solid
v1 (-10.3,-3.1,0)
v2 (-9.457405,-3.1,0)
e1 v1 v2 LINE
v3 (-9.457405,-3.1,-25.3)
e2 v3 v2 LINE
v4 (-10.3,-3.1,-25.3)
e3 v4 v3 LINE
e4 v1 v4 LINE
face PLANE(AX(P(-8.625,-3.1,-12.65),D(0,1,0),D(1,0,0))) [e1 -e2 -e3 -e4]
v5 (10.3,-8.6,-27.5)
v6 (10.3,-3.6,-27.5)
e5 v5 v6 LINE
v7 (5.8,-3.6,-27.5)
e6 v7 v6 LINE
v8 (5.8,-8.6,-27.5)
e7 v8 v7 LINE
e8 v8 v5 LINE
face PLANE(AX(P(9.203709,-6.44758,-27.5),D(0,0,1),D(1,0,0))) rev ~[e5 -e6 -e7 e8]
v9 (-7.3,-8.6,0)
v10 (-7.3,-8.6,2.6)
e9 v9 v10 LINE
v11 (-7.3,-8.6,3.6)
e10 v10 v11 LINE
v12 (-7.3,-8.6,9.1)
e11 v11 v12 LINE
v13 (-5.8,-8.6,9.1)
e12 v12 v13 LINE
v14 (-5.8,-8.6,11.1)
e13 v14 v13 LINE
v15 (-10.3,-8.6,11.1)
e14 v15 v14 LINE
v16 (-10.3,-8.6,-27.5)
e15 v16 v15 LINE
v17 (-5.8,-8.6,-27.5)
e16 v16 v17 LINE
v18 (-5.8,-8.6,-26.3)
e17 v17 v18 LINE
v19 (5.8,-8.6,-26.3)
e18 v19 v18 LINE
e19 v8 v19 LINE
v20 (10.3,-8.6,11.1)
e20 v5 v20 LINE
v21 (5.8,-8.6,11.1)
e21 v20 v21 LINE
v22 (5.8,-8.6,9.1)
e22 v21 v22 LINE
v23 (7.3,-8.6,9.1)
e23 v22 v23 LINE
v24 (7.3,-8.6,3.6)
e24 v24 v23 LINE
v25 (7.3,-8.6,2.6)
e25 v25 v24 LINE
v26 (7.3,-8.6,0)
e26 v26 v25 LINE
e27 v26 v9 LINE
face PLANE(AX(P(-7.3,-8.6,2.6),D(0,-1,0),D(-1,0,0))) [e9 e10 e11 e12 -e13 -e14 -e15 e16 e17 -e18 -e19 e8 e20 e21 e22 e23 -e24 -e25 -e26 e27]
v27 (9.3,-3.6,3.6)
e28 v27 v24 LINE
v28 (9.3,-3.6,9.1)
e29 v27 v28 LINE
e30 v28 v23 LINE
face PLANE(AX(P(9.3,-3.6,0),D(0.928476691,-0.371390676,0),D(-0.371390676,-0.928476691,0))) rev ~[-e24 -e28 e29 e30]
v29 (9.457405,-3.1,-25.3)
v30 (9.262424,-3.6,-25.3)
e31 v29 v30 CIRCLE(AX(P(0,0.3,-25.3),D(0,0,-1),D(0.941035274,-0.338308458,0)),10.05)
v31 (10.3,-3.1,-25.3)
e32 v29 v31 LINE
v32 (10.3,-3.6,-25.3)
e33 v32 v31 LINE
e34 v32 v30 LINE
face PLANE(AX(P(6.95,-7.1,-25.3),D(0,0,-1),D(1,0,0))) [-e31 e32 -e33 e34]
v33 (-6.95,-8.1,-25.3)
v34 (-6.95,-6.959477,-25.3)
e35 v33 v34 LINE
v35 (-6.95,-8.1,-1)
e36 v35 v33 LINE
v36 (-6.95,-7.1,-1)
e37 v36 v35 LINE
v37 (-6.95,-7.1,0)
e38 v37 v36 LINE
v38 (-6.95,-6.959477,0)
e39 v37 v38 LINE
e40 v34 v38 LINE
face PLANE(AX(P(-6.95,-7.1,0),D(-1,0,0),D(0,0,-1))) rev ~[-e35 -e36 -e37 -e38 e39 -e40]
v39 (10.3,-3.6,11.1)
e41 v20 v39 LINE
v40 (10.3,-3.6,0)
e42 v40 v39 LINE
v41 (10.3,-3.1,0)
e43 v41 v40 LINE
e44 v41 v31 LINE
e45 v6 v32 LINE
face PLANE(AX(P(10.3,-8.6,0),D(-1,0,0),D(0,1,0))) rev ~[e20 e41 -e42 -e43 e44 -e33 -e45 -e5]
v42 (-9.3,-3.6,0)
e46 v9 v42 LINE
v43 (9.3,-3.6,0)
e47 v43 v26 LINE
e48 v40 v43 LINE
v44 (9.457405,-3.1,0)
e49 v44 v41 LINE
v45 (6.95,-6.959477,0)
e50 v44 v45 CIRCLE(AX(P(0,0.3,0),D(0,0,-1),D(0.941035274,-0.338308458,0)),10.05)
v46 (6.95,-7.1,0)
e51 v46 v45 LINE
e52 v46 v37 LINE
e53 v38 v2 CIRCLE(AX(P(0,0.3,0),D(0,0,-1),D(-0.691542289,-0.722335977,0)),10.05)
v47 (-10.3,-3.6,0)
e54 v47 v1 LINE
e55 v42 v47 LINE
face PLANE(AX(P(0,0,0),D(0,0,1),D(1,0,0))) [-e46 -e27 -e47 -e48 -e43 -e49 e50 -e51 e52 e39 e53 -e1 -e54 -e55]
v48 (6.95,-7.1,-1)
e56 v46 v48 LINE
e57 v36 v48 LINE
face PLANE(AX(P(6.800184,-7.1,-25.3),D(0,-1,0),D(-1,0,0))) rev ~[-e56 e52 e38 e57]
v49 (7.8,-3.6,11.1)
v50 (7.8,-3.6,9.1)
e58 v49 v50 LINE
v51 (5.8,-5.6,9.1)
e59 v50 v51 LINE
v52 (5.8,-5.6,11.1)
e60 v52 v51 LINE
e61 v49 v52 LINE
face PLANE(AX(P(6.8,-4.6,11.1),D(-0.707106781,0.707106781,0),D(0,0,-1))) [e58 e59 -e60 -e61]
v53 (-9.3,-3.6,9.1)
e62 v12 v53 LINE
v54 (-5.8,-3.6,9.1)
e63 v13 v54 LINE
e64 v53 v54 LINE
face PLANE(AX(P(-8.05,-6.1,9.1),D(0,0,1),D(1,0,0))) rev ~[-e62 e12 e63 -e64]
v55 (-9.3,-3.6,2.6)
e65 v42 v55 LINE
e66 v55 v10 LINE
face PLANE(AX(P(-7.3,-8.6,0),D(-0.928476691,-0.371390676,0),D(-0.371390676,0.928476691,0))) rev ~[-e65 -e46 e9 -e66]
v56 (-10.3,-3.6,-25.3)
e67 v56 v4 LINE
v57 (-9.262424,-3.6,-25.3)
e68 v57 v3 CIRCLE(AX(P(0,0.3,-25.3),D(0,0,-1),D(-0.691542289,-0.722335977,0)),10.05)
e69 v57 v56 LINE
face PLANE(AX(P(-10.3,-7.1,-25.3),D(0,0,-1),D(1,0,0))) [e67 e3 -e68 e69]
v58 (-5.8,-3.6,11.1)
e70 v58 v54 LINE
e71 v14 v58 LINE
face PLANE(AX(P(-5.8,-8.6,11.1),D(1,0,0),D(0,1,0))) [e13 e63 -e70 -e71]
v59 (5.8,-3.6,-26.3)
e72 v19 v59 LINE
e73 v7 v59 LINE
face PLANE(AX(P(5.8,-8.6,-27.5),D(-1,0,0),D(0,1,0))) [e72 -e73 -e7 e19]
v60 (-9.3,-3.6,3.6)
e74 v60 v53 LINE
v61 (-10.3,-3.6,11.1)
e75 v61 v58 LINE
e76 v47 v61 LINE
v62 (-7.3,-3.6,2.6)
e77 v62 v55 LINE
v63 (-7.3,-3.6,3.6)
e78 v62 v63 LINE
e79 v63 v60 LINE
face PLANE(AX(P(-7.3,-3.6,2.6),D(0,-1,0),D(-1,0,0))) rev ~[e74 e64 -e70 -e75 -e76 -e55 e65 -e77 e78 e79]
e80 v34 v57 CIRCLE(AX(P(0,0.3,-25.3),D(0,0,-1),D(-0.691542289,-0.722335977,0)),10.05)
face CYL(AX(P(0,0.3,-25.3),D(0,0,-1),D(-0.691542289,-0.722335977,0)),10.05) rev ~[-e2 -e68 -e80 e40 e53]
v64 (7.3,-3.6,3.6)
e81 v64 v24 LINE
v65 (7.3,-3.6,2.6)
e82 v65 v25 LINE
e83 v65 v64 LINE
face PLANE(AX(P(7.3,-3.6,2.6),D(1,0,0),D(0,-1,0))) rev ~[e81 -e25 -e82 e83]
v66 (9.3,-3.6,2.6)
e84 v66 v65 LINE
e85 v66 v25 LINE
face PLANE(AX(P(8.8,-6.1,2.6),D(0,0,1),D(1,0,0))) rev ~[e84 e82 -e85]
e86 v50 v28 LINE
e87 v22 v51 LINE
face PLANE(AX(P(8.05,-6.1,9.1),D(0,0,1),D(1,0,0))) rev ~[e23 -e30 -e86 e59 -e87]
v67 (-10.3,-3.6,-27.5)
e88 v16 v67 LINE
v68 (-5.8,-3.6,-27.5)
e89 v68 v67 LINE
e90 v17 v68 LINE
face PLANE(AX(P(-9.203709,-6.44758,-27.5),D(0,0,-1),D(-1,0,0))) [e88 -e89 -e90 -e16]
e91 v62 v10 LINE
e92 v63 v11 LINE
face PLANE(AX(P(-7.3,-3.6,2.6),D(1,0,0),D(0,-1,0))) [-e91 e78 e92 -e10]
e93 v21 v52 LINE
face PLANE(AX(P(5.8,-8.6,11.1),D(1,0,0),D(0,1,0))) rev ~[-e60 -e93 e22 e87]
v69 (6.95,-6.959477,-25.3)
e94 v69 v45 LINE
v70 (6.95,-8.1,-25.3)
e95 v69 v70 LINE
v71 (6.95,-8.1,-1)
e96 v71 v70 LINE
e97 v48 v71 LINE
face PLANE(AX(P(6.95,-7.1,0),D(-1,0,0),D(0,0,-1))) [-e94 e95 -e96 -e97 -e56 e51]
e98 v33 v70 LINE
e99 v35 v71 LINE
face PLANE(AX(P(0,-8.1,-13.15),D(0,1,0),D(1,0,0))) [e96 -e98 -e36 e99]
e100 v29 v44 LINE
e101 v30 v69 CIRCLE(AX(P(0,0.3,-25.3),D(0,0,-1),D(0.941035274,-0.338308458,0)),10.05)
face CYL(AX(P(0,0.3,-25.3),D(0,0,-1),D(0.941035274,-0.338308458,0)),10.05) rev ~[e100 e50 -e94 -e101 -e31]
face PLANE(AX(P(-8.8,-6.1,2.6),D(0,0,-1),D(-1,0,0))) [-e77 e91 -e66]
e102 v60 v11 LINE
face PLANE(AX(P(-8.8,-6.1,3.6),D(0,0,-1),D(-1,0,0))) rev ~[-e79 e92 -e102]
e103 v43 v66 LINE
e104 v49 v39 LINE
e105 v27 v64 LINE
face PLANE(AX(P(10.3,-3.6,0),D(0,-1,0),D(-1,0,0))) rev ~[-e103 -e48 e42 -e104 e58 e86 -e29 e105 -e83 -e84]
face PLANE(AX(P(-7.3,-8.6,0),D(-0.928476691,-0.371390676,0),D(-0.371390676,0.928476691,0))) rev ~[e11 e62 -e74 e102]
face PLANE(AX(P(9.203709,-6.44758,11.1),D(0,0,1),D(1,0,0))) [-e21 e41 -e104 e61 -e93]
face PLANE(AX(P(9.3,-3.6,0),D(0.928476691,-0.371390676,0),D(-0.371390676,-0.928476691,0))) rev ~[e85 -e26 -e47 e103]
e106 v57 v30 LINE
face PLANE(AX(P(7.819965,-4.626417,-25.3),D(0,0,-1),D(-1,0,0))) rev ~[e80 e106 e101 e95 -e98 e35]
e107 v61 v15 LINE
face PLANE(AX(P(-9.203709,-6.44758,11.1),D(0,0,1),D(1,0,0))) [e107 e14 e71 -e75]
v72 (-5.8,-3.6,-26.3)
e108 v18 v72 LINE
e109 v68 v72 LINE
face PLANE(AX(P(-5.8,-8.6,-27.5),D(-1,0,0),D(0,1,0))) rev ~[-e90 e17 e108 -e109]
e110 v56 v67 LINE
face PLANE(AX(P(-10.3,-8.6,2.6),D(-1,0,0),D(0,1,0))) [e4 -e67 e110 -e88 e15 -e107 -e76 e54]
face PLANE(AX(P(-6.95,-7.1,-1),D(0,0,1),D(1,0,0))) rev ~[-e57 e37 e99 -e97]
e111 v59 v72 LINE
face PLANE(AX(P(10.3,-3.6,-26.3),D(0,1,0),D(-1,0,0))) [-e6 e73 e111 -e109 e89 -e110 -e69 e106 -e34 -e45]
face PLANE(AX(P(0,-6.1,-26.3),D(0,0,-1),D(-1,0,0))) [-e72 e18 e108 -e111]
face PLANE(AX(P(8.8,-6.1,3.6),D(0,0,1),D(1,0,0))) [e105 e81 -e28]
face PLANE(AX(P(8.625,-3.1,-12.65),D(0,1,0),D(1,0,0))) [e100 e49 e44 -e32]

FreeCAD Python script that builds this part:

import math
import FreeCAD as App
import Part
import Sketcher
from FreeCAD import Vector


def edges_at(feature, points):
    """Names of the edges that pass closest to the given points."""
    edges = feature.Shape.Edges
    near = lambda p: min(range(len(edges)), key=lambda i: edges[i].distToShape(Part.Vertex(*p))[0])
    return sorted({f"Edge{near(p) + 1}" for p in points})


def add_polygon(sketch, points):
    """Adds a closed chain of lines whose ends are joined by coincident constraints."""
    first, n = sketch.GeometryCount, len(points)
    for a, b in zip(points, points[1:] + points[:1]):
        sketch.addGeometry(Part.LineSegment(App.Vector(*a, 0), App.Vector(*b, 0)), False)
    for i in range(n):
        sketch.addConstraint(Sketcher.Constraint("Coincident", first + i, 2, first + (i + 1) % n, 1))

doc = App.newDocument("Part")
params = doc.addObject("Spreadsheet::Sheet", "Params")
for row, (alias, value) in enumerate([
    ("sketch1_radius", "3.1 mm"),
    ("sketch1_width", "20.6 mm"),
    ("sketch1_height", "17.2 mm"),
    ("sketch1_height2", "4.3 mm"),
    ("pad1_length", "2.5 mm"),
    ("sketch2_width", "20.6 mm"),
    ("sketch2_height", "1.5 mm"),
    ("pad2_length", "25.3 mm"),
    ("sketch3_height", "5 mm"),
    ("sketch3_width", "20.6 mm"),
    ("pad3_length", "1 mm"),
    ("sketch4_height", "25.3 mm"),
    ("sketch4_width", "3.35 mm"),
    ("pad4_length", "4 mm"),
    ("sketch5_radius", "3.1 mm"),
    ("sketch5_radius2", "10.05 mm"),
    ("sketch5_height", "4.3 mm"),
    ("pocket1_length", "25.3 mm"),
    ("chamfer_size", "2 mm"),
    ("sketch6_width", "3 mm"),
    ("sketch6_width2", "1 mm"),
    ("sketch6_height", "5 mm"),
    ("pad5_length", "1.2 mm"),
    ("sketch7_height", "5 mm"),
    ("sketch7_width", "4.5 mm"),
    ("pad6_length", "1.5 mm"),
    ("pocket2_length", "2.5 mm"),
    ("sketch9_width", "3 mm"),
    ("sketch9_width2", "1 mm"),
    ("sketch9_height", "5 mm"),
    ("pad7_length", "11.1 mm"),
    ("sketch10_width", "3 mm"),
    ("sketch10_height", "5 mm"),
    ("pad8_length", "1 mm"),
    ("sketch11_height", "5 mm"),
    ("sketch11_width", "4.5 mm"),
    ("pad9_length", "2 mm"),
    ("chamfer2_size", "2 mm"),
    ("sketch12_width", "13.9 mm"),
    ("sketch12_height", "24.3 mm"),
    ("pocket3_length", "1 mm"),
], start=1):
    params.set(f"A{row}", alias)
    params.set(f"B{row}", "=" + value)
    params.setAlias(f"B{row}", alias)

body = doc.addObject("PartDesign::Body", "Body")

sketch1 = body.newObject("Sketcher::SketchObject", "Sketch")
sketch1.AttachmentSupport = (doc.getObject("XY_Plane"), [""])
sketch1.MapMode = "FlatFace"
add_polygon(sketch1, [(-10.3, 8.6), (-10.3, -8.6), (10.3, -8.6), (10.3, 8.6)])
sketch1.addGeometry(Part.ArcOfCircle(Part.Circle(Vector(0, 2.3, 0), Vector(0, 0, 1), 3.1), math.radians(0), math.radians(180)), False)
sketch1.addGeometry(Part.LineSegment(Vector(3.1, 2.3, 0), Vector(3.1, -2, 0)), False)
sketch1.addGeometry(Part.ArcOfCircle(Part.Circle(Vector(0, -2, 0), Vector(0, 0, 1), 3.1), math.radians(180), math.radians(360)), False)
sketch1.addGeometry(Part.LineSegment(Vector(-3.1, -2, 0), Vector(-3.1, 2.3, 0)), False)
sketch1.addConstraint(Sketcher.Constraint("Tangent", 4, 1, 5, 1))
sketch1.addConstraint(Sketcher.Constraint("Tangent", 5, 2, 6, 2))
sketch1.addConstraint(Sketcher.Constraint("Tangent", 6, 1, 7, 1))
sketch1.addConstraint(Sketcher.Constraint("Tangent", 7, 2, 4, 2))
sketch1.addConstraint(Sketcher.Constraint("Vertical", 0))
sketch1.addConstraint(Sketcher.Constraint("Horizontal", 1))
sketch1.addConstraint(Sketcher.Constraint("Vertical", 2))
sketch1.addConstraint(Sketcher.Constraint("Horizontal", 3))
sketch1.addConstraint(Sketcher.Constraint("Vertical", 5))
sketch1.addConstraint(Sketcher.Constraint("Vertical", 7))
sketch1.addConstraint(Sketcher.Constraint("Symmetric", 0, 2, 2, 2, -1, 1))
sketch1.addConstraint(Sketcher.Constraint("PointOnObject", 4, 3, -2))
sketch1.addConstraint(Sketcher.Constraint("Radius", 4, 3.1))
sketch1.addConstraint(Sketcher.Constraint("DistanceX", 1, 1, 1, 2, 20.6))
sketch1.addConstraint(Sketcher.Constraint("DistanceY", 0, 2, 0, 1, 17.2))
sketch1.addConstraint(Sketcher.Constraint("DistanceY", 5, 2, 5, 1, 4.3))
sketch1.addConstraint(Sketcher.Constraint("DistanceY", 6, 3, -1, 1, 2.0))
sketch1.setExpression("Constraints[16]", "Params.sketch1_radius")
sketch1.setExpression("Constraints[17]", "Params.sketch1_width")
sketch1.setExpression("Constraints[18]", "Params.sketch1_height")
sketch1.setExpression("Constraints[19]", "Params.sketch1_height2")
pad1 = body.newObject("PartDesign::Pad", "Pad")
pad1.Profile = sketch1
pad1.setExpression("Length", "Params.pad1_length")

sketch2 = body.newObject("Sketcher::SketchObject", "Sketch001")
sketch2.AttachmentSupport = (doc.getObject("XY_Plane"), [""])
sketch2.MapMode = "FlatFace"
add_polygon(sketch2, [(10.3, -7.1), (10.3, -8.6), (-10.3, -8.6), (-10.3, -7.1)])
sketch2.addConstraint(Sketcher.Constraint("Vertical", 0))
sketch2.addConstraint(Sketcher.Constraint("Horizontal", 1))
sketch2.addConstraint(Sketcher.Constraint("Vertical", 2))
sketch2.addConstraint(Sketcher.Constraint("Horizontal", 3))
sketch2.addConstraint(Sketcher.Constraint("DistanceX", 1, 2, 1, 1, 20.6))
sketch2.addConstraint(Sketcher.Constraint("DistanceY", 0, 2, 0, 1, 1.5))
sketch2.addConstraint(Sketcher.Constraint("DistanceX", -1, 1, 0, 2, 10.3))
sketch2.addConstraint(Sketcher.Constraint("DistanceY", 0, 2, -1, 1, 8.6))
sketch2.setExpression("Constraints[8]", "Params.sketch2_width")
sketch2.setExpression("Constraints[9]", "Params.sketch2_height")
pad2 = body.newObject("PartDesign::Pad", "Pad001")
pad2.Profile = sketch2
pad2.setExpression("Length", "Params.pad2_length")
pad2.Reversed = True

sketch3 = body.newObject("Sketcher::SketchObject", "Sketch002")
sketch3.AttachmentSupport = (doc.getObject("XY_Plane"), [""])
sketch3.MapMode = "FlatFace"
sketch3.AttachmentOffset = App.Placement(Vector(0, 0, -25.3), App.Rotation())
add_polygon(sketch3, [(10, -4), (10, -9), (-10, -9), (-10, -4)])
sketch3.addConstraint(Sketcher.Constraint("Vertical", 0))
sketch3.addConstraint(Sketcher.Constraint("Horizontal", 1))
sketch3.addConstraint(Sketcher.Constraint("Vertical", 2))
sketch3.addConstraint(Sketcher.Constraint("Horizontal", 3))
sketch3.addConstraint(Sketcher.Constraint("DistanceY", 0, 2, 0, 1, 5.0))
sketch3.addConstraint(Sketcher.Constraint("DistanceX", 1, 2, 1, 1, 20.6))
sketch3.addConstraint(Sketcher.Constraint("DistanceX", -1, 1, 0, 2, 10.3))
sketch3.addConstraint(Sketcher.Constraint("DistanceY", 0, 2, -1, 1, 8.6))
sketch3.setExpression("Constraints[8]", "Params.sketch3_height")
sketch3.setExpression("Constraints[9]", "Params.sketch3_width")
pad3 = body.newObject("PartDesign::Pad", "Pad002")
pad3.Profile = sketch3
pad3.setExpression("Length", "Params.pad3_length")
pad3.Reversed = True

sketch4 = body.newObject("Sketcher::SketchObject", "Sketch003")
sketch4.AttachmentSupport = (doc.getObject("XZ_Plane"), [""])
sketch4.MapMode = "FlatFace"
sketch4.AttachmentOffset = App.Placement(Vector(0, 0, 7.1), App.Rotation())
add_polygon(sketch4, [(-10.3, -25.3), (-10.3, 0), (-7, 0), (-7, -25.3)])
add_polygon(sketch4, [(7, -25.3), (7, 0), (10.3, 0), (10.3, -25.3)])
sketch4.addConstraint(Sketcher.Constraint("Vertical", 0))
sketch4.addConstraint(Sketcher.Constraint("Horizontal", 1))
sketch4.addConstraint(Sketcher.Constraint("Vertical", 2))
sketch4.addConstraint(Sketcher.Constraint("Horizontal", 3))
sketch4.addConstraint(Sketcher.Constraint("Vertical", 4))
sketch4.addConstraint(Sketcher.Constraint("Horizontal", 5))
sketch4.addConstraint(Sketcher.Constraint("Vertical", 6))
sketch4.addConstraint(Sketcher.Constraint("Horizontal", 7))
sketch4.addConstraint(Sketcher.Constraint("Symmetric", 1, 2, 4, 2, -1, 1))
sketch4.addConstraint(Sketcher.Constraint("Symmetric", 0, 2, 5, 2, -2))
sketch4.addConstraint(Sketcher.Constraint("Horizontal", 3, 2, 6, 2))
sketch4.addConstraint(Sketcher.Constraint("DistanceY", 0, 1, 0, 2, 25.3))
sketch4.addConstraint(Sketcher.Constraint("DistanceX", 1, 1, 1, 2, 3.35))
sketch4.addConstraint(Sketcher.Constraint("DistanceX", 0, 2, -1, 1, 10.3))
sketch4.setExpression("Constraints[19]", "Params.sketch4_height")
sketch4.setExpression("Constraints[20]", "Params.sketch4_width")
pad4 = body.newObject("PartDesign::Pad", "Pad003")
pad4.Profile = sketch4
pad4.setExpression("Length", "Params.pad4_length")
pad4.Reversed = True

sketch5 = body.newObject("Sketcher::SketchObject", "Sketch004")
sketch5.AttachmentSupport = (doc.getObject("XY_Plane"), [""])
sketch5.MapMode = "FlatFace"
sketch5.AttachmentOffset = App.Placement(Vector(0, 0, -25.3), App.Rotation())
sketch5.addGeometry(Part.LineSegment(Vector(6.8, -7.1, 0), Vector(-6.8, -7.1, 0)), False)
sketch5.addGeometry(Part.ArcOfCircle(Part.Circle(Vector(0, 0.3, 0), Vector(0, 0, 1), 10.05), math.radians(-133.75), math.radians(-132.58)), False)
sketch5.addGeometry(Part.ArcOfCircle(Part.Circle(Vector(0, 0.3, 0), Vector(0, 0, 1), 10.05), math.radians(-160), math.radians(-134)), False)
sketch5.addGeometry(Part.ArcOfCircle(Part.Circle(Vector(0, 0.3, 0), Vector(0, 0, 1), 10.05), math.radians(180), math.radians(199.77)), False)
sketch5.addGeometry(Part.ArcOfCircle(Part.Circle(Vector(0, 0.3, 0), Vector(0, 0, 1), 10.05), math.radians(124), math.radians(180)), False)
sketch5.addGeometry(Part.LineSegment(Vector(-5.67, 8.6, 0), Vector(5.67, 8.6, 0)), False)
sketch5.addGeometry(Part.ArcOfCircle(Part.Circle(Vector(0, 0.3, 0), Vector(0, 0, 1), 10.05), math.radians(-20), math.radians(56)), False)
sketch5.addGeometry(Part.ArcOfCircle(Part.Circle(Vector(0, 0.3, 0), Vector(0, 0, 1), 10.05), math.radians(-46), math.radians(-20)), False)
sketch5.addGeometry(Part.ArcOfCircle(Part.Circle(Vector(0, 0.3, 0), Vector(0, 0, 1), 10.05), math.radians(-47.42), math.radians(-46.25)), False)
sketch5.addGeometry(Part.LineSegment(Vector(-3.1, 2.3, 0), Vector(-3.1, -2, 0)), False)
sketch5.addGeometry(Part.ArcOfCircle(Part.Circle(Vector(0, -2, 0), Vector(0, 0, 1), 3.1), math.radians(180), math.radians(360)), False)
sketch5.addGeometry(Part.LineSegment(Vector(3.1, -2, 0), Vector(3.1, 2.3, 0)), False)
sketch5.addGeometry(Part.ArcOfCircle(Part.Circle(Vector(0, 2.3, 0), Vector(0, 0, 1), 3.1), math.radians(0), math.radians(180)), False)
sketch5.addConstraint(Sketcher.Constraint("Coincident", 0, 2, 1, 2))
sketch5.addConstraint(Sketcher.Constraint("Tangent", 1, 1, 2, 2))
sketch5.addConstraint(Sketcher.Constraint("Tangent", 2, 1, 3, 2))
sketch5.addConstraint(Sketcher.Constraint("Tangent", 3, 1, 4, 2))
sketch5.addConstraint(Sketcher.Constraint("Coincident", 4, 1, 5, 1))
sketch5.addConstraint(Sketcher.Constraint("Coincident", 5, 2, 6, 2))
sketch5.addConstraint(Sketcher.Constraint("Tangent", 6, 1, 7, 2))
sketch5.addConstraint(Sketcher.Constraint("Tangent", 7, 1, 8, 2))
sketch5.addConstraint(Sketcher.Constraint("Coincident", 8, 1, 0, 1))
sketch5.addConstraint(Sketcher.Constraint("Tangent", 9, 2, 10, 1))
sketch5.addConstraint(Sketcher.Constraint("Tangent", 10, 2, 11, 1))
sketch5.addConstraint(Sketcher.Constraint("Tangent", 11, 2, 12, 1))
sketch5.addConstraint(Sketcher.Constraint("Tangent", 12, 2, 9, 1))
sketch5.addConstraint(Sketcher.Constraint("Horizontal", 0))
sketch5.addConstraint(Sketcher.Constraint("Horizontal", 5))
sketch5.addConstraint(Sketcher.Constraint("Vertical", 9))
sketch5.addConstraint(Sketcher.Constraint("Vertical", 11))
sketch5.addConstraint(Sketcher.Constraint("Coincident", 4, 3, 2, 3))
sketch5.addConstraint(Sketcher.Constraint("Coincident", 6, 3, 2, 3))
sketch5.addConstraint(Sketcher.Constraint("Equal", 4, 6))
sketch5.addConstraint(Sketcher.Constraint("Equal", 6, 7))
sketch5.addConstraint(Sketcher.Constraint("Equal", 1, 8))
sketch5.addConstraint(Sketcher.Constraint("Symmetric", 2, 1, 6, 1, -2))
sketch5.addConstraint(Sketcher.Constraint("PointOnObject", 10, 3, -2))
sketch5.addConstraint(Sketcher.Constraint("Horizontal", 7, 3, 3, 1))
sketch5.addConstraint(Sketcher.Constraint("Horizontal", 1, 1, 7, 1))
sketch5.addConstraint(Sketcher.Constraint("Radius", 10, 3.1))
sketch5.addConstraint(Sketcher.Constraint("Radius", 2, 10.05))
sketch5.addConstraint(Sketcher.Constraint("DistanceY", 9, 2, 9, 1, 4.3))
sketch5.addConstraint(Sketcher.Constraint("DistanceY", 10, 3, -1, 1, 2.0))
sketch5.addConstraint(Sketcher.Constraint("DistanceY", 2, 3, 12, 3, 2.0))
sketch5.addConstraint(Sketcher.Constraint("DistanceY", 0, 2, 2, 1, 4.0))
sketch5.addConstraint(Sketcher.Constraint("DistanceY", 0, 2, -1, 1, 7.1))
sketch5.addConstraint(Sketcher.Constraint("DistanceY", -1, 1, 4, 1, 8.6))
sketch5.addConstraint(Sketcher.Constraint("DistanceX", 3, 1, 1, 1, 3.1))
sketch5.addConstraint(Sketcher.Constraint("Radius", 1, 10.049989))
sketch5.setExpression("Constraints[26]", "Params.sketch5_radius")
sketch5.setExpression("Constraints[27]", "Params.sketch5_radius2")
sketch5.setExpression("Constraints[28]", "Params.sketch5_height")
pocket1 = body.newObject("PartDesign::Pocket", "Pocket")
pocket1.Profile = sketch5
pocket1.setExpression("Length", "Params.pocket1_length")
pocket1.Reversed = True
doc.recompute()

chamfer = body.newObject("PartDesign::Chamfer", "Chamfer")
chamfer.Base = (pocket1, edges_at(pocket1, [(-10.3, 8.6, 1.25), (10.3, 8.6, 1.25)]))
chamfer.setExpression("Size", "Params.chamfer_size")

sketch6 = body.newObject("Sketcher::SketchObject", "Sketch005")
sketch6.AttachmentSupport = (doc.getObject("XY_Plane"), [""])
sketch6.MapMode = "FlatFace"
sketch6.AttachmentOffset = App.Placement(Vector(0, 0, -26.3), App.Rotation())
add_polygon(sketch6, [(10.3, -8.6), (7.3, -8.6), (9.3, -3.6), (10.3, -3.6)])
add_polygon(sketch6, [(-9.3, -3.6), (-7.3, -8.6), (-10.3, -8.6), (-10.3, -3.6)])
sketch6.addConstraint(Sketcher.Constraint("Horizontal", 0))
sketch6.addConstraint(Sketcher.Constraint("Horizontal", 2))
sketch6.addConstraint(Sketcher.Constraint("Vertical", 3))
sketch6.addConstraint(Sketcher.Constraint("Horizontal", 5))
sketch6.addConstraint(Sketcher.Constraint("Vertical", 6))
sketch6.addConstraint(Sketcher.Constraint("Horizontal", 7))
sketch6.addConstraint(Sketcher.Constraint("Symmetric", 0, 2, 4, 2, -2))
sketch6.addConstraint(Sketcher.Constraint("Symmetric", 2, 2, 6, 2, -2))
sketch6.addConstraint(Sketcher.Constraint("Equal", 2, 7))
sketch6.addConstraint(Sketcher.Constraint("DistanceX", 0, 2, 0, 1, 3.0))
sketch6.addConstraint(Sketcher.Constraint("DistanceX", 2, 1, 2, 2, 1.0))
sketch6.addConstraint(Sketcher.Constraint("DistanceY", 3, 2, 3, 1, 5.0))
sketch6.addConstraint(Sketcher.Constraint("DistanceX", -1, 1, 0, 2, 7.3))
sketch6.addConstraint(Sketcher.Constraint("DistanceY", 0, 2, -1, 1, 8.6))
sketch6.setExpression("Constraints[17]", "Params.sketch6_width")
sketch6.setExpression("Constraints[18]", "Params.sketch6_width2")
sketch6.setExpression("Constraints[19]", "Params.sketch6_height")
pad5 = body.newObject("PartDesign::Pad", "Pad004")
pad5.Profile = sketch6
pad5.setExpression("Length", "Params.pad5_length")
pad5.Reversed = True

sketch7 = body.newObject("Sketcher::SketchObject", "Sketch006")
sketch7.AttachmentSupport = (doc.getObject("XY_Plane"), [""])
sketch7.MapMode = "FlatFace"
sketch7.AttachmentOffset = App.Placement(Vector(0, 0, -27.5), App.Rotation())
add_polygon(sketch7, [(10.3, -3.6), (10.3, -8.6), (5.8, -8.6), (5.8, -3.6)])
add_polygon(sketch7, [(-5.8, -3.6), (-5.8, -8.6), (-10.3, -8.6), (-10.3, -3.6)])
sketch7.addConstraint(Sketcher.Constraint("Vertical", 0))
sketch7.addConstraint(Sketcher.Constraint("Horizontal", 1))
sketch7.addConstraint(Sketcher.Constraint("Vertical", 2))
sketch7.addConstraint(Sketcher.Constraint("Horizontal", 3))
sketch7.addConstraint(Sketcher.Constraint("Vertical", 4))
sketch7.addConstraint(Sketcher.Constraint("Horizontal", 5))
sketch7.addConstraint(Sketcher.Constraint("Vertical", 6))
sketch7.addConstraint(Sketcher.Constraint("Horizontal", 7))
sketch7.addConstraint(Sketcher.Constraint("Symmetric", 1, 2, 4, 2, -2))
sketch7.addConstraint(Sketcher.Constraint("Symmetric", 3, 2, 6, 2, -2))
sketch7.addConstraint(Sketcher.Constraint("DistanceY", 0, 2, 0, 1, 5.0))
sketch7.addConstraint(Sketcher.Constraint("DistanceX", 1, 2, 1, 1, 4.5))
sketch7.addConstraint(Sketcher.Constraint("DistanceX", -1, 1, 0, 2, 10.3))
sketch7.addConstraint(Sketcher.Constraint("DistanceY", 0, 2, -1, 1, 8.6))
sketch7.setExpression("Constraints[18]", "Params.sketch7_height")
sketch7.setExpression("Constraints[19]", "Params.sketch7_width")
pad6 = body.newObject("PartDesign::Pad", "Pad005")
pad6.Profile = sketch7
pad6.setExpression("Length", "Params.pad6_length")

sketch8 = body.newObject("Sketcher::SketchObject", "Sketch007")
sketch8.AttachmentSupport = (doc.getObject("XY_Plane"), [""])
sketch8.MapMode = "FlatFace"
sketch8.AttachmentOffset = App.Placement(Vector(0, 0, 2.5), App.Rotation())
sketch8.addGeometry(Part.Circle(Vector(0, 0, 0), Vector(0, 0, 1), 17), False)
sketch8.addConstraint(Sketcher.Constraint("Coincident", 0, 3, -1, 1))
sketch8.addConstraint(Sketcher.Constraint("Diameter", 0, 33.58641))
pocket2 = body.newObject("PartDesign::Pocket", "Pocket001")
pocket2.Profile = sketch8
pocket2.setExpression("Length", "Params.pocket2_length")

sketch9 = body.newObject("Sketcher::SketchObject", "Sketch008")
sketch9.AttachmentSupport = (doc.getObject("XY_Plane"), [""])
sketch9.MapMode = "FlatFace"
add_polygon(sketch9, [(7.3, -8.6), (10.3, -8.6), (10.3, -3.6), (9.3, -3.6)])
add_polygon(sketch9, [(-10.3, -8.6), (-7.3, -8.6), (-9.3, -3.6), (-10.3, -3.6)])
sketch9.addConstraint(Sketcher.Constraint("Horizontal", 0))
sketch9.addConstraint(Sketcher.Constraint("Vertical", 1))
sketch9.addConstraint(Sketcher.Constraint("Horizontal", 2))
sketch9.addConstraint(Sketcher.Constraint("Horizontal", 4))
sketch9.addConstraint(Sketcher.Constraint("Horizontal", 6))
sketch9.addConstraint(Sketcher.Constraint("Vertical", 7))
sketch9.addConstraint(Sketcher.Constraint("Symmetric", 3, 2, 4, 2, -2))
sketch9.addConstraint(Sketcher.Constraint("Symmetric", 2, 2, 5, 2, -2))
sketch9.addConstraint(Sketcher.Constraint("Equal", 0, 4))
sketch9.addConstraint(Sketcher.Constraint("DistanceX", 0, 1, 0, 2, 3.0))
sketch9.addConstraint(Sketcher.Constraint("DistanceX", 2, 2, 2, 1, 1.0))
sketch9.addConstraint(Sketcher.Constraint("DistanceY", 1, 1, 1, 2, 5.0))
sketch9.addConstraint(Sketcher.Constraint("DistanceX", -1, 1, 0, 2, 10.3))
sketch9.addConstraint(Sketcher.Constraint("DistanceY", 0, 2, -1, 1, 8.6))
sketch9.setExpression("Constraints[17]", "Params.sketch9_width")
sketch9.setExpression("Constraints[18]", "Params.sketch9_width2")
sketch9.setExpression("Constraints[19]", "Params.sketch9_height")
pad7 = body.newObject("PartDesign::Pad", "Pad006")
pad7.Profile = sketch9
pad7.setExpression("Length", "Params.pad7_length")

sketch10 = body.newObject("Sketcher::SketchObject", "Sketch009")
sketch10.AttachmentSupport = (doc.getObject("XY_Plane"), [""])
sketch10.MapMode = "FlatFace"
sketch10.AttachmentOffset = App.Placement(Vector(0, 0, 2.6), App.Rotation())
add_polygon(sketch10, [(-7.3, -3.6), (-10.3, -3.6), (-10.3, -8.6), (-7.3, -8.6)])
add_polygon(sketch10, [(7.3, -3.6), (7.3, -8.6), (10.3, -8.6), (10.3, -3.6)])
sketch10.addConstraint(Sketcher.Constraint("Horizontal", 0))
sketch10.addConstraint(Sketcher.Constraint("Vertical", 1))
sketch10.addConstraint(Sketcher.Constraint("Horizontal", 2))
sketch10.addConstraint(Sketcher.Constraint("Vertical", 3))
sketch10.addConstraint(Sketcher.Constraint("Vertical", 4))
sketch10.addConstraint(Sketcher.Constraint("Horizontal", 5))
sketch10.addConstraint(Sketcher.Constraint("Vertical", 6))
sketch10.addConstraint(Sketcher.Constraint("Horizontal", 7))
sketch10.addConstraint(Sketcher.Constraint("Symmetric", 2, 2, 4, 2, -2))
sketch10.addConstraint(Sketcher.Constraint("Symmetric", 0, 2, 6, 2, -2))
sketch10.addConstraint(Sketcher.Constraint("DistanceX", 0, 2, 0, 1, 3.0))
sketch10.addConstraint(Sketcher.Constraint("DistanceY", 1, 2, 1, 1, 5.0))
sketch10.addConstraint(Sketcher.Constraint("DistanceX", 0, 2, -1, 1, 10.3))
sketch10.addConstraint(Sketcher.Constraint("DistanceY", 0, 2, -1, 1, 3.6))
sketch10.setExpression("Constraints[18]", "Params.sketch10_width")
sketch10.setExpression("Constraints[19]", "Params.sketch10_height")
pad8 = body.newObject("PartDesign::Pad", "Pad007")
pad8.Profile = sketch10
pad8.setExpression("Length", "Params.pad8_length")

sketch11 = body.newObject("Sketcher::SketchObject", "Sketch010")
sketch11.AttachmentSupport = (doc.getObject("XY_Plane"), [""])
sketch11.MapMode = "FlatFace"
sketch11.AttachmentOffset = App.Placement(Vector(0, 0, 11.1), App.Rotation())
add_polygon(sketch11, [(-10.3, -3.6), (-10.3, -8.6), (-5.8, -8.6), (-5.8, -3.6)])
add_polygon(sketch11, [(5.8, -3.6), (5.8, -8.6), (10.3, -8.6), (10.3, -3.6)])
sketch11.addConstraint(Sketcher.Constraint("Vertical", 0))
sketch11.addConstraint(Sketcher.Constraint("Horizontal", 1))
sketch11.addConstraint(Sketcher.Constraint("Vertical", 2))
sketch11.addConstraint(Sketcher.Constraint("Horizontal", 3))
sketch11.addConstraint(Sketcher.Constraint("Vertical", 4))
sketch11.addConstraint(Sketcher.Constraint("Horizontal", 5))
sketch11.addConstraint(Sketcher.Constraint("Vertical", 6))
sketch11.addConstraint(Sketcher.Constraint("Horizontal", 7))
sketch11.addConstraint(Sketcher.Constraint("Symmetric", 1, 2, 4, 2, -2))
sketch11.addConstraint(Sketcher.Constraint("Symmetric", 3, 2, 6, 2, -2))
sketch11.addConstraint(Sketcher.Constraint("DistanceY", 0, 2, 0, 1, 5.0))
sketch11.addConstraint(Sketcher.Constraint("DistanceX", 1, 1, 1, 2, 4.5))
sketch11.addConstraint(Sketcher.Constraint("DistanceX", 0, 2, -1, 1, 10.3))
sketch11.addConstraint(Sketcher.Constraint("DistanceY", 0, 2, -1, 1, 8.6))
sketch11.setExpression("Constraints[18]", "Params.sketch11_height")
sketch11.setExpression("Constraints[19]", "Params.sketch11_width")
pad9 = body.newObject("PartDesign::Pad", "Pad008")
pad9.Profile = sketch11
pad9.setExpression("Length", "Params.pad9_length")
pad9.Reversed = True
doc.recompute()

chamfer2 = body.newObject("PartDesign::Chamfer", "Chamfer001")
chamfer2.Base = (pad9, edges_at(pad9, [(5.8, -3.6, 10.1)]))
chamfer2.setExpression("Size", "Params.chamfer2_size")

sketch12 = body.newObject("Sketcher::SketchObject", "Sketch011")
sketch12.AttachmentSupport = (doc.getObject("XZ_Plane"), [""])
sketch12.MapMode = "FlatFace"
sketch12.AttachmentOffset = App.Placement(Vector(0, 0, 7.1), App.Rotation())
add_polygon(sketch12, [(-7, -25), (-7, -1), (7, -1), (7, -25)])
sketch12.addConstraint(Sketcher.Constraint("Vertical", 0))
sketch12.addConstraint(Sketcher.Constraint("Horizontal", 1))
sketch12.addConstraint(Sketcher.Constraint("Vertical", 2))
sketch12.addConstraint(Sketcher.Constraint("Horizontal", 3))
sketch12.addConstraint(Sketcher.Constraint("DistanceX", 1, 1, 1, 2, 13.9))
sketch12.addConstraint(Sketcher.Constraint("DistanceY", 0, 1, 0, 2, 24.3))
sketch12.addConstraint(Sketcher.Constraint("DistanceY", 0, 2, -1, 1, 1.0))
sketch12.addConstraint(Sketcher.Constraint("DistanceX", 0, 2, -1, 1, 6.95))
sketch12.setExpression("Constraints[8]", "Params.sketch12_width")
sketch12.setExpression("Constraints[9]", "Params.sketch12_height")
pocket3 = body.newObject("PartDesign::Pocket", "Pocket002")
pocket3.Profile = sketch12
pocket3.setExpression("Length", "Params.pocket3_length")
pocket3.Reversed = True

doc.recompute()
